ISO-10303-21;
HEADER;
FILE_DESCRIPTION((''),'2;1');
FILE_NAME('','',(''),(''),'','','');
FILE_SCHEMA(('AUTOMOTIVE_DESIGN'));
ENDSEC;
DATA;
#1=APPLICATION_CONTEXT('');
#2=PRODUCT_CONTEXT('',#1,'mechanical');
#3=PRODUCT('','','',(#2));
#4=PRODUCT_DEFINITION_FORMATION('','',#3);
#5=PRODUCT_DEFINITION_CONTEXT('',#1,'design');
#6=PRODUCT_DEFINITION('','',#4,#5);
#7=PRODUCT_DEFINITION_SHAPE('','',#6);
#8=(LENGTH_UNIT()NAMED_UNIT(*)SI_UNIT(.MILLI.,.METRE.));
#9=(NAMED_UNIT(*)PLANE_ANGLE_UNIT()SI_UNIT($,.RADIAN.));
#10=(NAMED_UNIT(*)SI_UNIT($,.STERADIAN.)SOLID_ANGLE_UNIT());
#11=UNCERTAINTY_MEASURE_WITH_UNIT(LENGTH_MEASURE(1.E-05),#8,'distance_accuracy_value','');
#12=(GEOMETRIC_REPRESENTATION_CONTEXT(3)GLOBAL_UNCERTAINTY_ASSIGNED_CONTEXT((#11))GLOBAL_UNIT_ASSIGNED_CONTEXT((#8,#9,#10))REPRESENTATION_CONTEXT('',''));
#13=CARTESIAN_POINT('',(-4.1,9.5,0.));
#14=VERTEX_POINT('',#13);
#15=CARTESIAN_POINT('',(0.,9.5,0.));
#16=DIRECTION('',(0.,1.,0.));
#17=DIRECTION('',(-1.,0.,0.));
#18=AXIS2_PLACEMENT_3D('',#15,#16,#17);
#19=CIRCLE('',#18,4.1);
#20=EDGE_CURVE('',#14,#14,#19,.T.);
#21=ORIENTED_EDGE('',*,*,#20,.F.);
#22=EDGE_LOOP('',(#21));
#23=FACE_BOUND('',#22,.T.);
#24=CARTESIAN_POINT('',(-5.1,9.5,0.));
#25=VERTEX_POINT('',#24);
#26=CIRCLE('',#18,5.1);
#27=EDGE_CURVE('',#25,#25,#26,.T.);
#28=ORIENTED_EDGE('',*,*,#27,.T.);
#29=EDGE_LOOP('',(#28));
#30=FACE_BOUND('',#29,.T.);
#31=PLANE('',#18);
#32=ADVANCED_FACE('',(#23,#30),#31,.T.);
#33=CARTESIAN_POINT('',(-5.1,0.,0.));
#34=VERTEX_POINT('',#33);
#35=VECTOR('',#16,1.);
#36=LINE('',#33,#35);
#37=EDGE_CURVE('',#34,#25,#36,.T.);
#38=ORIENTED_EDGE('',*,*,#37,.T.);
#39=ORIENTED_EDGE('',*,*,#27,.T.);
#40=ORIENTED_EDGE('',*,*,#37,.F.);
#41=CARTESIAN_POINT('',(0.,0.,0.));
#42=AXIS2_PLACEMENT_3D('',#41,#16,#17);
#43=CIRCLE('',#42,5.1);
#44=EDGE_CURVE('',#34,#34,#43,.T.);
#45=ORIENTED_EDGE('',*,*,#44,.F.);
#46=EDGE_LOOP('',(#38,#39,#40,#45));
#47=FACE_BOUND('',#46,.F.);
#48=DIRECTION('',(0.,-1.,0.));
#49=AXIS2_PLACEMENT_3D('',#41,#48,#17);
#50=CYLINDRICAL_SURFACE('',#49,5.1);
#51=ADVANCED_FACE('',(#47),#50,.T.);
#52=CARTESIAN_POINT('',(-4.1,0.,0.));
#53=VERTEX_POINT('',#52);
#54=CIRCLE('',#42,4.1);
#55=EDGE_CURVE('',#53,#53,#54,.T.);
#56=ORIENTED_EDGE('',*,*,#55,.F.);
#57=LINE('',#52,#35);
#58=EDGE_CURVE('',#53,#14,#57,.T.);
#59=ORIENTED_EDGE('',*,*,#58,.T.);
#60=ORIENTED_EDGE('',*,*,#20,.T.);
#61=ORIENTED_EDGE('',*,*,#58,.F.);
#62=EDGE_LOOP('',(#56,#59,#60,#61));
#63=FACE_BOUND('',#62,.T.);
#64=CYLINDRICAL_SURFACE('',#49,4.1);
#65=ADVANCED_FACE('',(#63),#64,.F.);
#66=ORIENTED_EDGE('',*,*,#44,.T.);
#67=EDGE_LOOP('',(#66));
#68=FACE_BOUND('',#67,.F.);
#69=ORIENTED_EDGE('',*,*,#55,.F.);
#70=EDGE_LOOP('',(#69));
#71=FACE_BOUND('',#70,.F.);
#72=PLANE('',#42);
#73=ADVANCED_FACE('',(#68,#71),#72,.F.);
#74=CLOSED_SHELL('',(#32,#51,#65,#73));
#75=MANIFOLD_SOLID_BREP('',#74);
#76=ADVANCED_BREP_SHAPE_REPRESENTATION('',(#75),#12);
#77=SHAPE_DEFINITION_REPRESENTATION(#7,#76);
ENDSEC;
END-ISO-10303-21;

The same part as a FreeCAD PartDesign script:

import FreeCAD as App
import Part
import Sketcher
from FreeCAD import Vector

doc = App.newDocument("Part")
body = doc.addObject("PartDesign::Body", "Body")

# Sketch on XZ plane
sketch1 = body.newObject("Sketcher::SketchObject", "Sketch")
sketch1.AttachmentSupport = (doc.getObject("XZ_Plane"), [""])
sketch1.MapMode = "FlatFace"
sketch1.addGeometry(Part.Circle(Vector(0, 0, 0), Vector(0, 0, 1), 5.1), False)
sketch1.addGeometry(Part.Circle(Vector(0, 0, 0), Vector(0, 0, 1), 4.1), False)
sketch1.addConstraint(Sketcher.Constraint("Coincident", 0, 3, -1, 1))
sketch1.addConstraint(Sketcher.Constraint("Coincident", 1, 3, -1, 1))
sketch1.addConstraint(Sketcher.Constraint("Diameter", 0, 10.2))
sketch1.addConstraint(Sketcher.Constraint("Diameter", 1, 8.2))
pad1 = body.newObject("PartDesign::Pad", "Pad")
pad1.Profile = sketch1
pad1.Length = 9.5
pad1.Reversed = True

doc.recompute()
